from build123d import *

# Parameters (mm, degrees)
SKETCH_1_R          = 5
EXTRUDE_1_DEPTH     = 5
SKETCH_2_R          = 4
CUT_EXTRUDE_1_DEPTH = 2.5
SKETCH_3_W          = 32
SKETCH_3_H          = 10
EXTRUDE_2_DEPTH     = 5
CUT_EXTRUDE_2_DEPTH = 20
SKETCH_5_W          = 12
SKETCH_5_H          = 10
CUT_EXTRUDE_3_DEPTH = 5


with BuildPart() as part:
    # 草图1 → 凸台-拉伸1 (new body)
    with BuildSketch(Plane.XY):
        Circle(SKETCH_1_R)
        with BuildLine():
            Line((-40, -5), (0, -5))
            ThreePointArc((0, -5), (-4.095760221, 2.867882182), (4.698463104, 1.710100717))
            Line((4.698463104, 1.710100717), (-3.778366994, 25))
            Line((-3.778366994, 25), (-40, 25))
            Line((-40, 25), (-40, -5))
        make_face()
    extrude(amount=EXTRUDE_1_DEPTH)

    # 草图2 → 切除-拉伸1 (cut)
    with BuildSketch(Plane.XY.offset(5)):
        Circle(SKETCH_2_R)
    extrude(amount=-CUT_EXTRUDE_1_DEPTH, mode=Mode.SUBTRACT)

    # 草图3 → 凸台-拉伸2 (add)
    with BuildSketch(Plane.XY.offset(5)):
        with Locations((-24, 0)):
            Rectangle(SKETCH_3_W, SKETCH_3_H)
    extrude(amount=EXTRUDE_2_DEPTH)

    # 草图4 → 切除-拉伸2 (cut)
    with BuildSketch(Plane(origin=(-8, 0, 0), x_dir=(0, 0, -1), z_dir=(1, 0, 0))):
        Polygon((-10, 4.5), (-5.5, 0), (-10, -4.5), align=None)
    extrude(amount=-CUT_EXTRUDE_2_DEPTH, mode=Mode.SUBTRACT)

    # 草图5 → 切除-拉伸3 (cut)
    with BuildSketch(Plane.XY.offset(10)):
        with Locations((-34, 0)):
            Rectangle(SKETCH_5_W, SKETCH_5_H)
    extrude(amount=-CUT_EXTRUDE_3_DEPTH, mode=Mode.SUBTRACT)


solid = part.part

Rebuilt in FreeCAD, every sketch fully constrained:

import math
import FreeCAD as App
import Part
import Sketcher
from FreeCAD import Vector
Q = App.Units.Quantity

doc = App.newDocument("Part")
body = doc.addObject("PartDesign::Body", "Body")

sketch1 = body.newObject("Sketcher::SketchObject", "Sketch")
sketch1.AttachmentSupport = (doc.getObject("XY_Plane"), [""])
sketch1.MapMode = "FlatFace"
sketch1.addGeometry([
    Part.LineSegment(Vector(5, 2, 0), Vector(-4, 25, 0)),
    Part.LineSegment(Vector(-4, 25, 0), Vector(-40, 25, 0)),
    Part.LineSegment(Vector(-40, 25, 0), Vector(-40, -5, 0)),
    Part.LineSegment(Vector(-40, -5, 0), Vector(0, -5, 0)),
    Part.ArcOfCircle(Part.Circle(Vector(0, 0, 0), Vector(0, 0, 1), 5), math.radians(-90), math.radians(20)),
], False)
sketch1.addConstraint([
    Sketcher.Constraint("Coincident", 0, 2, 1, 1),
    Sketcher.Constraint("Coincident", 1, 2, 2, 1),
    Sketcher.Constraint("Coincident", 2, 2, 3, 1),
    Sketcher.Constraint("Tangent", 3, 2, 4, 1),
    Sketcher.Constraint("Tangent", 4, 2, 0, 1),
    Sketcher.Constraint("Horizontal", 1),
    Sketcher.Constraint("Vertical", 2),
    Sketcher.Constraint("Horizontal", 3),
    Sketcher.Constraint("Coincident", 4, 3, -1, 1),
    Sketcher.Constraint("Radius", 4, Q("5 mm")),
    Sketcher.Constraint("DistanceX", 3, 1, 3, 2, Q("40 mm")),
    Sketcher.Constraint("DistanceY", 2, 2, 2, 1, Q("30 mm")),
    Sketcher.Constraint("Angle", 0, Q("110 deg")),
])
pad1 = body.newObject("PartDesign::Pad", "Pad")
pad1.Profile = sketch1
pad1.Length = 5

sketch2 = body.newObject("Sketcher::SketchObject", "Sketch001")
sketch2.AttachmentSupport = (doc.getObject("XY_Plane"), [""])
sketch2.MapMode = "FlatFace"
sketch2.AttachmentOffset = App.Placement(Vector(0, 0, 5), App.Rotation())
sketch2.addGeometry(Part.Circle(Vector(0, 0, 0), Vector(0, 0, 1), 4), False)
sketch2.addConstraint([
    Sketcher.Constraint("Coincident", 0, 3, -1, 1),
    Sketcher.Constraint("Diameter", 0, Q("8 mm")),
])
pocket1 = body.newObject("PartDesign::Pocket", "Pocket")
pocket1.Profile = sketch2
pocket1.Length = 2.5

sketch3 = body.newObject("Sketcher::SketchObject", "Sketch002")
sketch3.AttachmentSupport = (doc.getObject("XY_Plane"), [""])
sketch3.MapMode = "FlatFace"
sketch3.AttachmentOffset = App.Placement(Vector(0, 0, 5), App.Rotation())
sketch3.addGeometry([
    Part.LineSegment(Vector(-40, 5, 0), Vector(-40, -5, 0)),
    Part.LineSegment(Vector(-40, -5, 0), Vector(-8, -5, 0)),
    Part.LineSegment(Vector(-8, -5, 0), Vector(-8, 5, 0)),
    Part.LineSegment(Vector(-8, 5, 0), Vector(-40, 5, 0)),
], False)
sketch3.addConstraint([
    Sketcher.Constraint("Coincident", 0, 2, 1, 1),
    Sketcher.Constraint("Coincident", 1, 2, 2, 1),
    Sketcher.Constraint("Coincident", 2, 2, 3, 1),
    Sketcher.Constraint("Coincident", 3, 2, 0, 1),
    Sketcher.Constraint("Vertical", 0),
    Sketcher.Constraint("Horizontal", 1),
    Sketcher.Constraint("Vertical", 2),
    Sketcher.Constraint("Horizontal", 3),
    Sketcher.Constraint("DistanceX", 1, 1, 1, 2, Q("32 mm")),
    Sketcher.Constraint("DistanceY", 0, 2, 0, 1, Q("10 mm")),
    Sketcher.Constraint("DistanceX", 0, 2, -1, 1, Q("40 mm")),
    Sketcher.Constraint("DistanceY", 0, 2, -1, 1, Q("5 mm")),
])
pad2 = body.newObject("PartDesign::Pad", "Pad001")
pad2.Profile = sketch3
pad2.Length = 5

sketch4 = body.newObject("Sketcher::SketchObject", "Sketch003")
sketch4.AttachmentSupport = (doc.getObject("YZ_Plane"), [""])
sketch4.MapMode = "FlatFace"
sketch4.AttachmentOffset = App.Placement(Vector(0, 0, -8), App.Rotation())
sketch4.addGeometry([
    Part.LineSegment(Vector(0, 6, 0), Vector(4, 10, 0)),
    Part.LineSegment(Vector(4, 10, 0), Vector(-4, 10, 0)),
    Part.LineSegment(Vector(-4, 10, 0), Vector(0, 6, 0)),
], False)
sketch4.addConstraint([
    Sketcher.Constraint("Coincident", 0, 2, 1, 1),
    Sketcher.Constraint("Coincident", 1, 2, 2, 1),
    Sketcher.Constraint("Coincident", 2, 2, 0, 1),
    Sketcher.Constraint("Horizontal", 1),
    Sketcher.Constraint("PointOnObject", 2, 2, -2),
    Sketcher.Constraint("Perpendicular", 0, 2),
    Sketcher.Constraint("Equal", 0, 2),
    Sketcher.Constraint("DistanceX", 1, 2, 1, 1, Q("9 mm")),
    Sketcher.Constraint("DistanceY", -1, 1, 0, 2, Q("10 mm")),
])
pocket2 = body.newObject("PartDesign::Pocket", "Pocket001")
pocket2.Profile = sketch4
pocket2.Length = 20

sketch5 = body.newObject("Sketcher::SketchObject", "Sketch004")
sketch5.AttachmentSupport = (doc.getObject("XY_Plane"), [""])
sketch5.MapMode = "FlatFace"
sketch5.AttachmentOffset = App.Placement(Vector(0, 0, 10), App.Rotation())
sketch5.addGeometry([
    Part.LineSegment(Vector(-40, 5, 0), Vector(-40, -5, 0)),
    Part.LineSegment(Vector(-40, -5, 0), Vector(-28, -5, 0)),
    Part.LineSegment(Vector(-28, -5, 0), Vector(-28, 5, 0)),
    Part.LineSegment(Vector(-28, 5, 0), Vector(-40, 5, 0)),
], False)
sketch5.addConstraint([
    Sketcher.Constraint("Coincident", 0, 2, 1, 1),
    Sketcher.Constraint("Coincident", 1, 2, 2, 1),
    Sketcher.Constraint("Coincident", 2, 2, 3, 1),
    Sketcher.Constraint("Coincident", 3, 2, 0, 1),
    Sketcher.Constraint("Vertical", 0),
    Sketcher.Constraint("Horizontal", 1),
    Sketcher.Constraint("Vertical", 2),
    Sketcher.Constraint("Horizontal", 3),
    Sketcher.Constraint("DistanceX", 1, 1, 1, 2, Q("12 mm")),
    Sketcher.Constraint("DistanceY", 0, 2, 0, 1, Q("10 mm")),
    Sketcher.Constraint("DistanceX", 0, 2, -1, 1, Q("40 mm")),
    Sketcher.Constraint("DistanceY", 0, 2, -1, 1, Q("5 mm")),
])
pocket3 = body.newObject("PartDesign::Pocket", "Pocket002")
pocket3.Profile = sketch5
pocket3.Length = 5

doc.recompute()
